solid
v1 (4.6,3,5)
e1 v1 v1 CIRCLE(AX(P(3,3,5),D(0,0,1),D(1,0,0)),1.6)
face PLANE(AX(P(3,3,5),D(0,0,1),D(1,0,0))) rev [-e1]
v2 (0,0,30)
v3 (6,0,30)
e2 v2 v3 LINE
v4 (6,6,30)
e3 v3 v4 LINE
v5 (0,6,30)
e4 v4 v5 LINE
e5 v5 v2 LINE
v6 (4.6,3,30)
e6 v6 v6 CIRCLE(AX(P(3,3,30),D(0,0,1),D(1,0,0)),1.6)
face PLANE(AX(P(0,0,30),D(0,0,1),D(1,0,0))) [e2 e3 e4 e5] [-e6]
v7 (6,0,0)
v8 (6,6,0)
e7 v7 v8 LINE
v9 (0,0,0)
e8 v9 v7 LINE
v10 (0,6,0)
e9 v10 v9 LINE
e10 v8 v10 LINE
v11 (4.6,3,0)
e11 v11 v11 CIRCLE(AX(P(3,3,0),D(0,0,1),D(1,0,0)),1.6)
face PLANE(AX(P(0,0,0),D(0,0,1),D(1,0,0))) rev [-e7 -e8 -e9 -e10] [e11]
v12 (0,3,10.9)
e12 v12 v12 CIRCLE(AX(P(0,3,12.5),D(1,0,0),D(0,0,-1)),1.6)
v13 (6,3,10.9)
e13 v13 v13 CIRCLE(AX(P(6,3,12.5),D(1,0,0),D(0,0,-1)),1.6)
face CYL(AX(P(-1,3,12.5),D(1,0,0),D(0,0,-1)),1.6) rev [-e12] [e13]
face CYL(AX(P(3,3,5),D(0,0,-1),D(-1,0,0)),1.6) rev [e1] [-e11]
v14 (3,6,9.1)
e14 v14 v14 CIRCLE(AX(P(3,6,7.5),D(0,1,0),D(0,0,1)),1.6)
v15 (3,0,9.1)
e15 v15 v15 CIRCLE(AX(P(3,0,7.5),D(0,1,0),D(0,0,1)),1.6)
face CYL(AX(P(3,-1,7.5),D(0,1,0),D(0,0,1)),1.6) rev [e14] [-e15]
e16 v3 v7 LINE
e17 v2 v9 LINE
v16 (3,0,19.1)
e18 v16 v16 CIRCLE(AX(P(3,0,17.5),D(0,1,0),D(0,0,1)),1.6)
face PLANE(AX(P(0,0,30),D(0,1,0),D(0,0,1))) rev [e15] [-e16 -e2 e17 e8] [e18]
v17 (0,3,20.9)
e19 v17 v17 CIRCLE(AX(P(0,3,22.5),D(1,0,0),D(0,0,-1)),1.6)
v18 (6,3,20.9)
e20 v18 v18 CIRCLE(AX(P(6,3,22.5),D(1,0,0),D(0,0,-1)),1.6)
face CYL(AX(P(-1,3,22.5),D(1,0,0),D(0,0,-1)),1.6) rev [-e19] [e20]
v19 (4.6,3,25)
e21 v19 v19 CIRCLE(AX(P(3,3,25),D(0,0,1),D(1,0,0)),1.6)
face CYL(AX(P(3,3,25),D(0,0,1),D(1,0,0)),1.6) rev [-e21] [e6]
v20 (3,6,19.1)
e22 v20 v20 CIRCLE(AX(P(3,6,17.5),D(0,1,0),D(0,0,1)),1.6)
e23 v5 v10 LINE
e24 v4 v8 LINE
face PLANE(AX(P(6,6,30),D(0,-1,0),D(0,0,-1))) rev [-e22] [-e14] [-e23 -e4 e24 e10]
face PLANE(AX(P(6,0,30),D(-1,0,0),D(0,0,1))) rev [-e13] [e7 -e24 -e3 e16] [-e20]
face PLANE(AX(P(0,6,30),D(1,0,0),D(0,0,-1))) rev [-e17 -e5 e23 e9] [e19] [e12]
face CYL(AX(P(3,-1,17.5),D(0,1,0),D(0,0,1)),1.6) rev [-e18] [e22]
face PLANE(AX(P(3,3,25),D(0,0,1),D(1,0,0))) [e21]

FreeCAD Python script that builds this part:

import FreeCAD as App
import Part
import Sketcher

doc = App.newDocument("Part")
body = doc.addObject("PartDesign::Body", "Body")

# Sketch on XY plane
sketch1 = body.newObject("Sketcher::SketchObject", "Sketch")
sketch1.AttachmentSupport = (doc.getObject("XY_Plane"), [""])
sketch1.MapMode = "FlatFace"
sketch1.addGeometry([
    Part.LineSegment(App.Vector(0, 6, 0), App.Vector(0, 0, 0)),
    Part.LineSegment(App.Vector(0, 0, 0), App.Vector(6, 0, 0)),
    Part.LineSegment(App.Vector(6, 0, 0), App.Vector(6, 6, 0)),
    Part.LineSegment(App.Vector(6, 6, 0), App.Vector(0, 6, 0)),
], False)
sketch1.addConstraint([
    Sketcher.Constraint("Coincident", 0, 2, 1, 1),
    Sketcher.Constraint("Coincident", 1, 2, 2, 1),
    Sketcher.Constraint("Coincident", 2, 2, 3, 1),
    Sketcher.Constraint("Coincident", 3, 2, 0, 1),
    Sketcher.Constraint("Vertical", 0),
    Sketcher.Constraint("Horizontal", 1),
    Sketcher.Constraint("Vertical", 2),
    Sketcher.Constraint("Horizontal", 3),
    Sketcher.Constraint("Coincident", 0, 2, -1, 1),
    Sketcher.Constraint("Equal", 3, 0),
    Sketcher.Constraint("DistanceX", 1, 1, 1, 2, 6.0),
])
pad1 = body.newObject("PartDesign::Pad", "Pad")
pad1.Profile = sketch1
pad1.Length = 30

# Sketch on XY plane
sketch2 = body.newObject("Sketcher::SketchObject", "Sketch001")
sketch2.AttachmentSupport = (doc.getObject("XY_Plane"), [""])
sketch2.MapMode = "FlatFace"
sketch2.AttachmentOffset = App.Placement(App.Vector(0, 0, 30), App.Rotation())
sketch2.addGeometry(Part.Circle(App.Vector(3, 3, 0), App.Vector(0, 0, 1), 1.6), False)
sketch2.addConstraint([
    Sketcher.Constraint("Diameter", 0, 3.2),
    Sketcher.Constraint("DistanceX", -1, 1, 0, 3, 3.0),
    Sketcher.Constraint("DistanceY", -1, 1, 0, 3, 3.0),
])
pocket1 = body.newObject("PartDesign::Pocket", "Pocket")
pocket1.Profile = sketch2
pocket1.Length = 5

# Sketch on XY plane
sketch3 = body.newObject("Sketcher::SketchObject", "Sketch002")
sketch3.AttachmentSupport = (doc.getObject("XY_Plane"), [""])
sketch3.MapMode = "FlatFace"
sketch3.addGeometry(Part.Circle(App.Vector(3, 3, 0), App.Vector(0, 0, 1), 1.6), False)
sketch3.addConstraint([
    Sketcher.Constraint("Diameter", 0, 3.2),
    Sketcher.Constraint("DistanceX", -1, 1, 0, 3, 3.0),
    Sketcher.Constraint("DistanceY", -1, 1, 0, 3, 3.0),
])
pocket2 = body.newObject("PartDesign::Pocket", "Pocket001")
pocket2.Profile = sketch3
pocket2.Length = 5
pocket2.Reversed = True

# Sketch on YZ plane
sketch4 = body.newObject("Sketcher::SketchObject", "Sketch003")
sketch4.AttachmentSupport = (doc.getObject("YZ_Plane"), [""])
sketch4.MapMode = "FlatFace"
sketch4.AttachmentOffset = App.Placement(App.Vector(0, 0, 6), App.Rotation())
sketch4.addGeometry([
    Part.Circle(App.Vector(3, 22.5, 0), App.Vector(0, 0, 1), 1.6),
    Part.Circle(App.Vector(3, 12.5, 0), App.Vector(0, 0, 1), 1.6),
], False)
sketch4.addConstraint([
    Sketcher.Constraint("Equal", 0, 1),
    Sketcher.Constraint("Vertical", 0, 3, 1, 3),
    Sketcher.Constraint("Diameter", 0, 3.2),
    Sketcher.Constraint("DistanceX", -1, 1, 0, 3, 3.0),
    Sketcher.Constraint("DistanceY", 1, 3, 0, 3, 10.0),
    Sketcher.Constraint("DistanceY", -1, 1, 0, 3, 22.5),
])
pocket3 = body.newObject("PartDesign::Pocket", "Pocket002")
pocket3.Profile = sketch4
pocket3.Length = 7

# Sketch on XZ plane
sketch5 = body.newObject("Sketcher::SketchObject", "Sketch004")
sketch5.AttachmentSupport = (doc.getObject("XZ_Plane"), [""])
sketch5.MapMode = "FlatFace"
sketch5.AttachmentOffset = App.Placement(App.Vector(0, 0, -6), App.Rotation())
sketch5.addGeometry([
    Part.Circle(App.Vector(3, 7.5, 0), App.Vector(0, 0, 1), 1.6),
    Part.Circle(App.Vector(3, 17.5, 0), App.Vector(0, 0, 1), 1.6),
], False)
sketch5.addConstraint([
    Sketcher.Constraint("Equal", 0, 1),
    Sketcher.Constraint("Vertical", 0, 3, 1, 3),
    Sketcher.Constraint("Diameter", 0, 3.2),
    Sketcher.Constraint("DistanceX", -1, 1, 0, 3, 3.0),
    Sketcher.Constraint("DistanceY", 0, 3, 1, 3, 10.0),
    Sketcher.Constraint("DistanceY", -1, 1, 0, 3, 7.5),
])
pocket4 = body.newObject("PartDesign::Pocket", "Pocket003")
pocket4.Profile = sketch5
pocket4.Length = 7
pocket4.Reversed = True

doc.recompute()
